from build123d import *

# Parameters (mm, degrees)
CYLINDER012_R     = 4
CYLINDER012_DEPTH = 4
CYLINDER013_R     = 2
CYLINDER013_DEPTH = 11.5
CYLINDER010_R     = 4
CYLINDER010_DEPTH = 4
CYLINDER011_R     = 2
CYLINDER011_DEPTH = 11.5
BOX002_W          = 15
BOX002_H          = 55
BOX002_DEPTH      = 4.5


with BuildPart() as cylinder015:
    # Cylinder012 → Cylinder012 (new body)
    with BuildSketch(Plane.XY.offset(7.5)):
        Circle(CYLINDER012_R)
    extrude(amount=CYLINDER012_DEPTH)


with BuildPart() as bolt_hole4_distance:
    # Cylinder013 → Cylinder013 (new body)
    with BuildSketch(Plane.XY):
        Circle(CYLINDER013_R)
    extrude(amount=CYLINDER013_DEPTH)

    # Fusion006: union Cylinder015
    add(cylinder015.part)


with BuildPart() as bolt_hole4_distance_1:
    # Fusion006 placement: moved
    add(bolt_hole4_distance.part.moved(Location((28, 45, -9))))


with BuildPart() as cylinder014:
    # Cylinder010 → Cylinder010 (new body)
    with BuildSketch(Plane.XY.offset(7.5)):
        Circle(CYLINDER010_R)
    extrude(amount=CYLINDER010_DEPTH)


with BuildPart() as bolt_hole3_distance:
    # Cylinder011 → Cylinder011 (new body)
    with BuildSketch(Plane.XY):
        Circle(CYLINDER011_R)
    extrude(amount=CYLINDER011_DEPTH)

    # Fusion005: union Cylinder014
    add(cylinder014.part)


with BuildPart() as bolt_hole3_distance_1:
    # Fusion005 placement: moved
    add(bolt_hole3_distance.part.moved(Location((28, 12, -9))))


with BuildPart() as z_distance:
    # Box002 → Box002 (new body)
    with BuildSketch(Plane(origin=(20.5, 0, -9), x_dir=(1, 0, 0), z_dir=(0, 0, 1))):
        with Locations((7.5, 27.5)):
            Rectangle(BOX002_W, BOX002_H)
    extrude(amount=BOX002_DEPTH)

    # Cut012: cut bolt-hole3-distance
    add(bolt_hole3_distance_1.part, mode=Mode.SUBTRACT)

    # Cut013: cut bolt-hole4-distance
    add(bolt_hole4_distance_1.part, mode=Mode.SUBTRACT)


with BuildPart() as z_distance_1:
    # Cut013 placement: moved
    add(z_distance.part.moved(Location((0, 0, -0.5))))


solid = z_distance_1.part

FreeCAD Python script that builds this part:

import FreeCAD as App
import Part
import Sketcher
from FreeCAD import Vector
Q = App.Units.Quantity


def add_polygon(sketch, points):
    """Adds a closed chain of lines whose ends are joined by coincident constraints."""
    first, n = sketch.GeometryCount, len(points)
    for a, b in zip(points, points[1:] + points[:1]):
        sketch.addGeometry(Part.LineSegment(App.Vector(*a, 0), App.Vector(*b, 0)), False)
    for i in range(n):
        sketch.addConstraint(Sketcher.Constraint("Coincident", first + i, 2, first + (i + 1) % n, 1))

doc = App.newDocument("Part")
params = doc.addObject("Spreadsheet::Sheet", "Params")
for row, (alias, value) in enumerate([
    ("sketch1_diameter", "8 mm"),
    ("pad1_length", "4 mm"),
    ("sketch2_diameter", "4 mm"),
    ("pad2_length", "11.5 mm"),
    ("sketch3_diameter", "8 mm"),
    ("pad3_length", "4 mm"),
    ("sketch4_diameter", "4 mm"),
    ("pad4_length", "11.5 mm"),
    ("sketch5_width", "15 mm"),
    ("sketch5_height", "55 mm"),
    ("pad5_length", "4.5 mm"),
], start=1):
    params.set(f"A{row}", alias)
    params.set(f"B{row}", "=" + value)
    params.setAlias(f"B{row}", alias)

body = doc.addObject("PartDesign::Body", "Body")

# Sketch on XY plane
sketch1 = body.newObject("Sketcher::SketchObject", "Sketch")
sketch1.AttachmentSupport = (doc.getObject("XY_Plane"), [""])
sketch1.MapMode = "FlatFace"
sketch1.AttachmentOffset = App.Placement(Vector(0, 0, 7.5), App.Rotation())
sketch1.addGeometry(Part.Circle(Vector(0, 0, 0), Vector(0, 0, 1), 4), False)
sketch1.addConstraint([
    Sketcher.Constraint("Coincident", 0, 3, -1, 1),
    Sketcher.Constraint("Diameter", 0, Q("8 mm")),
])
sketch1.setExpression("Constraints[1]", "Params.sketch1_diameter")
pad1 = body.newObject("PartDesign::Pad", "Pad")
pad1.Profile = sketch1
pad1.setExpression("Length", "Params.pad1_length")
body2 = doc.addObject("PartDesign::Body", "Body001")

# Sketch on XY plane
sketch2 = body2.newObject("Sketcher::SketchObject", "Sketch001")
sketch2.AttachmentSupport = (doc.getObject("XY_Plane001"), [""])
sketch2.MapMode = "FlatFace"
sketch2.addGeometry(Part.Circle(Vector(0, 0, 0), Vector(0, 0, 1), 2), False)
sketch2.addConstraint([
    Sketcher.Constraint("Coincident", 0, 3, -1, 1),
    Sketcher.Constraint("Diameter", 0, Q("4 mm")),
])
sketch2.setExpression("Constraints[1]", "Params.sketch2_diameter")
pad2 = body2.newObject("PartDesign::Pad", "Pad001")
pad2.Profile = sketch2
pad2.setExpression("Length", "Params.pad2_length")
doc.recompute()

boolean = body2.newObject("PartDesign::Boolean", "Boolean")
boolean.Type = "Fuse"
boolean.addObjects([body])
body3 = doc.addObject("PartDesign::Body", "Body002")
doc.recompute()

body2.Placement = App.Placement(Vector(28, 45, -9), App.Rotation(Vector(0, 0, 1), 0))
boolean2 = body3.newObject("PartDesign::Boolean", "Boolean001")
boolean2.Type = "Fuse"
boolean2.addObjects([body2])
body4 = doc.addObject("PartDesign::Body", "Body003")

# Sketch on XY plane
sketch3 = body4.newObject("Sketcher::SketchObject", "Sketch002")
sketch3.AttachmentSupport = (doc.getObject("XY_Plane003"), [""])
sketch3.MapMode = "FlatFace"
sketch3.AttachmentOffset = App.Placement(Vector(0, 0, 7.5), App.Rotation())
sketch3.addGeometry(Part.Circle(Vector(0, 0, 0), Vector(0, 0, 1), 4), False)
sketch3.addConstraint([
    Sketcher.Constraint("Coincident", 0, 3, -1, 1),
    Sketcher.Constraint("Diameter", 0, Q("8 mm")),
])
sketch3.setExpression("Constraints[1]", "Params.sketch3_diameter")
pad3 = body4.newObject("PartDesign::Pad", "Pad002")
pad3.Profile = sketch3
pad3.setExpression("Length", "Params.pad3_length")
body5 = doc.addObject("PartDesign::Body", "Body004")

# Sketch on XY plane
sketch4 = body5.newObject("Sketcher::SketchObject", "Sketch003")
sketch4.AttachmentSupport = (doc.getObject("XY_Plane004"), [""])
sketch4.MapMode = "FlatFace"
sketch4.addGeometry(Part.Circle(Vector(0, 0, 0), Vector(0, 0, 1), 2), False)
sketch4.addConstraint([
    Sketcher.Constraint("Coincident", 0, 3, -1, 1),
    Sketcher.Constraint("Diameter", 0, Q("4 mm")),
])
sketch4.setExpression("Constraints[1]", "Params.sketch4_diameter")
pad4 = body5.newObject("PartDesign::Pad", "Pad003")
pad4.Profile = sketch4
pad4.setExpression("Length", "Params.pad4_length")
doc.recompute()

boolean3 = body5.newObject("PartDesign::Boolean", "Boolean002")
boolean3.Type = "Fuse"
boolean3.addObjects([body4])
body6 = doc.addObject("PartDesign::Body", "Body005")
doc.recompute()

body5.Placement = App.Placement(Vector(28, 12, -9), App.Rotation(Vector(0, 0, 1), 0))
boolean4 = body6.newObject("PartDesign::Boolean", "Boolean003")
boolean4.Type = "Fuse"
boolean4.addObjects([body5])
body7 = doc.addObject("PartDesign::Body", "Body006")

# Sketch on XY plane
sketch5 = body7.newObject("Sketcher::SketchObject", "Sketch004")
sketch5.AttachmentSupport = (doc.getObject("XY_Plane006"), [""])
sketch5.MapMode = "FlatFace"
sketch5.AttachmentOffset = App.Placement(Vector(0, 0, -9), App.Rotation())
add_polygon(sketch5, [(20, 55), (20, 0), (36, 0), (36, 55)])  # lines 0-3
sketch5.addConstraint([
    Sketcher.Constraint("Vertical", 0),
    Sketcher.Constraint("Horizontal", 1),
    Sketcher.Constraint("Vertical", 2),
    Sketcher.Constraint("Horizontal", 3),
    Sketcher.Constraint("PointOnObject", 0, 2, -1),
    Sketcher.Constraint("DistanceX", 1, 1, 1, 2, Q("15 mm")),
    Sketcher.Constraint("DistanceY", 0, 2, 0, 1, Q("55 mm")),
    Sketcher.Constraint("DistanceX", -1, 1, 0, 2, Q("20.5 mm")),
])
sketch5.setExpression("Constraints[9]", "Params.sketch5_width")
sketch5.setExpression("Constraints[10]", "Params.sketch5_height")
pad5 = body7.newObject("PartDesign::Pad", "Pad004")
pad5.Profile = sketch5
pad5.setExpression("Length", "Params.pad5_length")
doc.recompute()

boolean5 = body7.newObject("PartDesign::Boolean", "Boolean004")
boolean5.Type = "Cut"
boolean5.addObjects([body6])
doc.recompute()

boolean6 = body7.newObject("PartDesign::Boolean", "Boolean005")
boolean6.Type = "Cut"
boolean6.addObjects([body3])
body8 = doc.addObject("PartDesign::Body", "Body007")
doc.recompute()

body7.Placement = App.Placement(Vector(0, 0, -0.5), App.Rotation(Vector(0, 0, 1), 0))
boolean7 = body8.newObject("PartDesign::Boolean", "Boolean006")
boolean7.Type = "Fuse"
boolean7.addObjects([body7])

doc.recompute()
